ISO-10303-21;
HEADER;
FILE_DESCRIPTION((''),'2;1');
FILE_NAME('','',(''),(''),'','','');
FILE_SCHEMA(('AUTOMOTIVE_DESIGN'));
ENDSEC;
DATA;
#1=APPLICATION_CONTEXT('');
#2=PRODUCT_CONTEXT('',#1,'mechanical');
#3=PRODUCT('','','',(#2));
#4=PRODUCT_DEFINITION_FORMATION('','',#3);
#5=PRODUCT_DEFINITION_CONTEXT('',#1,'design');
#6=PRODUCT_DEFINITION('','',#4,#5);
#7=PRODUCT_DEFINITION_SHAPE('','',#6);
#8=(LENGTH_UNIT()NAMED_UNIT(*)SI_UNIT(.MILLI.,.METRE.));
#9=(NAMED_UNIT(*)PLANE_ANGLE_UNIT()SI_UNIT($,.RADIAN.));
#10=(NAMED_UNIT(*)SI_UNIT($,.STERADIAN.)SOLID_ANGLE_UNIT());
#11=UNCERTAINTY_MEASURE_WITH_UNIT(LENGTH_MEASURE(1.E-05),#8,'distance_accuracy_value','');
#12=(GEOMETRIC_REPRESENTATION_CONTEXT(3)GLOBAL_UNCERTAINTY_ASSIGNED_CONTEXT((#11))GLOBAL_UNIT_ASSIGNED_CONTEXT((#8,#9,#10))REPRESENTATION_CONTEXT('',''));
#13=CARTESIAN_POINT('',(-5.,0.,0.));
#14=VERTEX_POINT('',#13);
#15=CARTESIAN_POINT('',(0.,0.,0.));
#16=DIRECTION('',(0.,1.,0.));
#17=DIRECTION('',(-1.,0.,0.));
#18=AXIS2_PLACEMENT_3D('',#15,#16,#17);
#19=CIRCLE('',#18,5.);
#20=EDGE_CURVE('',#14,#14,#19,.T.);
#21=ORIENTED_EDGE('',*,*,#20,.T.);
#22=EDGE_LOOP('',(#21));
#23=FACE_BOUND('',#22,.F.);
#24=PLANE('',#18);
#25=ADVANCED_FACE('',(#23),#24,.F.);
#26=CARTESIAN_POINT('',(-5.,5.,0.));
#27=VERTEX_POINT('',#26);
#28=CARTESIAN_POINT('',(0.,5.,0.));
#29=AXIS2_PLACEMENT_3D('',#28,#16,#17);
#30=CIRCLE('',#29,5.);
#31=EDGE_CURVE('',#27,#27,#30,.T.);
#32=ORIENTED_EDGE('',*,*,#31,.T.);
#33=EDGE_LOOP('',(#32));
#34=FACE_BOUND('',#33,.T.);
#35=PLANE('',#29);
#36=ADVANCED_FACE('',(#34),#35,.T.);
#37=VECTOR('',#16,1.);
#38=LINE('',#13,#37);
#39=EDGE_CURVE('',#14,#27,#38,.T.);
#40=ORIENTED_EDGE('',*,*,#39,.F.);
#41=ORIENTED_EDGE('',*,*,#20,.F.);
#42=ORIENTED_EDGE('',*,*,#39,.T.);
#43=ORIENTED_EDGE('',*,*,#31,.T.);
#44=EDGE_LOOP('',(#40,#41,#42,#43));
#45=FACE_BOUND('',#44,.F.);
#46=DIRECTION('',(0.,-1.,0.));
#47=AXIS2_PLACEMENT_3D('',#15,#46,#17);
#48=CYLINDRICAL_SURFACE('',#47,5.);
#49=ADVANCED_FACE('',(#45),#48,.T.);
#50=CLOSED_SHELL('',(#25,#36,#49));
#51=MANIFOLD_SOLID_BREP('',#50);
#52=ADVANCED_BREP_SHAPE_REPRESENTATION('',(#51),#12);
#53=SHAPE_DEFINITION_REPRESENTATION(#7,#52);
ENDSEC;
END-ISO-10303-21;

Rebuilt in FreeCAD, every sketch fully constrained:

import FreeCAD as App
import Part
import Sketcher

V = App.Vector
Q = App.Units.Quantity

doc = App.newDocument("Part")
body = doc.addObject("PartDesign::Body", "Body")

# Sketch on XZ plane
sketch1 = body.newObject("Sketcher::SketchObject", "Sketch")
sketch1.AttachmentSupport = (doc.getObject("XZ_Plane"), [""])
sketch1.MapMode = "FlatFace"
sketch1.addGeometry(Part.Circle(V(0, 0, 0), V(0, 0, 1), 5), False)
sketch1.addConstraint(Sketcher.Constraint("Coincident", 0, 3, -1, 1))
sketch1.addConstraint(Sketcher.Constraint("Diameter", 0, Q("10 mm")))
pad1 = body.newObject("PartDesign::Pad", "Pad")
pad1.Profile = sketch1
pad1.Length = 5
pad1.Reversed = True

doc.recompute()
